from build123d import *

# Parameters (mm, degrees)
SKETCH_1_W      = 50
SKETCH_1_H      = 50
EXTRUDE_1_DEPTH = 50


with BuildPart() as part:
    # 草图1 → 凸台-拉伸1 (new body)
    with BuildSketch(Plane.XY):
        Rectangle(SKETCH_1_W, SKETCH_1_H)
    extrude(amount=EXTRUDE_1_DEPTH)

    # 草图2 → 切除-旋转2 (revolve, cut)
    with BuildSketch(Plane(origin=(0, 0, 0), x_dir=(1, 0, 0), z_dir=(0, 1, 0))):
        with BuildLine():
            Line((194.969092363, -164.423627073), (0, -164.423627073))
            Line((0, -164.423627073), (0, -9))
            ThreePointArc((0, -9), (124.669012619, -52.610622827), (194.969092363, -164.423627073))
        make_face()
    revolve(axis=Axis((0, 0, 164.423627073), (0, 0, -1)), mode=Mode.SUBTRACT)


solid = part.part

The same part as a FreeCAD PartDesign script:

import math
import FreeCAD as App
import Part
import Sketcher
from FreeCAD import Vector
Q = App.Units.Quantity

doc = App.newDocument("Part")
body = doc.addObject("PartDesign::Body", "Body")

# Sketch on XY plane
sketch1 = body.newObject("Sketcher::SketchObject", "Sketch")
sketch1.AttachmentSupport = (doc.getObject("XY_Plane"), [""])
sketch1.MapMode = "FlatFace"
sketch1.addGeometry([
    Part.LineSegment(Vector(-25, 25, 0), Vector(-25, -25, 0)),
    Part.LineSegment(Vector(-25, -25, 0), Vector(25, -25, 0)),
    Part.LineSegment(Vector(25, -25, 0), Vector(25, 25, 0)),
    Part.LineSegment(Vector(25, 25, 0), Vector(-25, 25, 0)),
], False)
sketch1.addConstraint([
    Sketcher.Constraint("Coincident", 0, 2, 1, 1),
    Sketcher.Constraint("Coincident", 1, 2, 2, 1),
    Sketcher.Constraint("Coincident", 2, 2, 3, 1),
    Sketcher.Constraint("Coincident", 3, 2, 0, 1),
    Sketcher.Constraint("Vertical", 0),
    Sketcher.Constraint("Horizontal", 1),
    Sketcher.Constraint("Vertical", 2),
    Sketcher.Constraint("Horizontal", 3),
    Sketcher.Constraint("Symmetric", 0, 2, 2, 2, -1, 1),
    Sketcher.Constraint("Equal", 3, 0),
    Sketcher.Constraint("DistanceX", 1, 1, 1, 2, Q("50 mm")),
])
pad1 = body.newObject("PartDesign::Pad", "Pad")
pad1.Profile = sketch1
pad1.Length = 50

# Sketch on XZ plane
sketch2 = body.newObject("Sketcher::SketchObject", "Sketch001")
sketch2.AttachmentSupport = (doc.getObject("XZ_Plane"), [""])
sketch2.MapMode = "FlatFace"
sketch2.addGeometry([
    Part.LineSegment(Vector(0, 164, 0), Vector(195, 164, 0)),
    Part.ArcOfCircle(Part.Circle(Vector(0, 209, 0), Vector(0, 0, 1), 200), math.radians(-90), math.radians(-13)),
    Part.LineSegment(Vector(0, 9, 0), Vector(0, 164, 0)),
], False)
sketch2.addConstraint([
    Sketcher.Constraint("Coincident", 0, 2, 1, 2),
    Sketcher.Constraint("Coincident", 1, 1, 2, 1),
    Sketcher.Constraint("Coincident", 2, 2, 0, 1),
    Sketcher.Constraint("Horizontal", 0),
    Sketcher.Constraint("Vertical", 2),
    Sketcher.Constraint("PointOnObject", 1, 3, -2),
    Sketcher.Constraint("PointOnObject", 1, 1, -2),
    Sketcher.Constraint("Radius", 1, Q("200 mm")),
    Sketcher.Constraint("DistanceY", -1, 1, 1, 3, Q("209 mm")),
    Sketcher.Constraint("DistanceX", 0, 1, 0, 2, Q("194.969092 mm")),
])
groove = body.newObject("PartDesign::Groove", "Groove")
groove.Profile = sketch2
groove.ReferenceAxis = (sketch2, ["V_Axis"])
groove.Angle = 360

doc.recompute()
